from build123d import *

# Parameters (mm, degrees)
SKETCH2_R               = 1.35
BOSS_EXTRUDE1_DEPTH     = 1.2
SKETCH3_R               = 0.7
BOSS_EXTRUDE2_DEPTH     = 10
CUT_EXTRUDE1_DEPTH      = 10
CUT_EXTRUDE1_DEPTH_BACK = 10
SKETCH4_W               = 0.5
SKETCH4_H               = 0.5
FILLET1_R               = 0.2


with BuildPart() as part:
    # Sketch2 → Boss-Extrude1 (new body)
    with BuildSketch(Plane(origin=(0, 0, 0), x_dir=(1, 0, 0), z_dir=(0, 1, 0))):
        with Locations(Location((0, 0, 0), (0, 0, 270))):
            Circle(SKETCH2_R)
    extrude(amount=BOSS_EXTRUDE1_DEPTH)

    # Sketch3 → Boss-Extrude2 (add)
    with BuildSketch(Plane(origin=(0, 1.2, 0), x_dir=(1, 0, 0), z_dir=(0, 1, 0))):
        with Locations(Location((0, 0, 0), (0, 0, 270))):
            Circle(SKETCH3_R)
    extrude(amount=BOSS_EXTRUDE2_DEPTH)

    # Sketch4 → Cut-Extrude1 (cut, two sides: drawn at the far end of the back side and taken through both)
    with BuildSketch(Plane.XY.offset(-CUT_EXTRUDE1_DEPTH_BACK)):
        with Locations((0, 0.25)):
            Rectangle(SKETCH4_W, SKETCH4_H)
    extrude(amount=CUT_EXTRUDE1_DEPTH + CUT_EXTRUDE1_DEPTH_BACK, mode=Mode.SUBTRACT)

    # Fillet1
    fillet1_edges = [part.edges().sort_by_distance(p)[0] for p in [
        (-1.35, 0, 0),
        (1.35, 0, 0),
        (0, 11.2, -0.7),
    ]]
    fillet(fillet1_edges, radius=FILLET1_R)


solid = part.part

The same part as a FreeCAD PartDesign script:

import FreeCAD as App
import Part
import Sketcher


def edges_at(feature, points):
    """Names of the edges that pass closest to the given points."""
    edges = feature.Shape.Edges
    near = lambda p: min(range(len(edges)), key=lambda i: edges[i].distToShape(Part.Vertex(*p))[0])
    return sorted({f"Edge{near(p) + 1}" for p in points})

doc = App.newDocument("Part")
body = doc.addObject("PartDesign::Body", "Body")

# Sketch on XZ plane
sketch1 = body.newObject("Sketcher::SketchObject", "Sketch")
sketch1.AttachmentSupport = (doc.getObject("XZ_Plane"), [""])
sketch1.MapMode = "FlatFace"
sketch1.addGeometry(Part.Circle(App.Vector(0, 0, 0), App.Vector(0, 0, 1), 1.4), False)
sketch1.addConstraint(Sketcher.Constraint("Coincident", 0, 3, -1, 1))
sketch1.addConstraint(Sketcher.Constraint("Diameter", 0, 2.7))
pad1 = body.newObject("PartDesign::Pad", "Pad")
pad1.Profile = sketch1
pad1.Length = 1.2
pad1.Reversed = True

# Sketch on XZ plane
sketch2 = body.newObject("Sketcher::SketchObject", "Sketch001")
sketch2.AttachmentSupport = (doc.getObject("XZ_Plane"), [""])
sketch2.MapMode = "FlatFace"
sketch2.AttachmentOffset = App.Placement(App.Vector(0, 0, -1.2), App.Rotation())
sketch2.addGeometry(Part.Circle(App.Vector(0, 0, 0), App.Vector(0, 0, 1), 0.7), False)
sketch2.addConstraint(Sketcher.Constraint("Coincident", 0, 3, -1, 1))
sketch2.addConstraint(Sketcher.Constraint("Diameter", 0, 1.4))
pad2 = body.newObject("PartDesign::Pad", "Pad001")
pad2.Profile = sketch2
pad2.Length = 10
pad2.Reversed = True

# Sketch on XY plane
sketch3 = body.newObject("Sketcher::SketchObject", "Sketch002")
sketch3.AttachmentSupport = (doc.getObject("XY_Plane"), [""])
sketch3.MapMode = "FlatFace"
sketch3.addGeometry(Part.LineSegment(App.Vector(-0.2, 0.5, 0), App.Vector(-0.2, 0, 0)), False)
sketch3.addGeometry(Part.LineSegment(App.Vector(-0.2, 0, 0), App.Vector(0.2, 0, 0)), False)
sketch3.addGeometry(Part.LineSegment(App.Vector(0.2, 0, 0), App.Vector(0.2, 0.5, 0)), False)
sketch3.addGeometry(Part.LineSegment(App.Vector(0.2, 0.5, 0), App.Vector(-0.2, 0.5, 0)), False)
sketch3.addConstraint(Sketcher.Constraint("Coincident", 0, 2, 1, 1))
sketch3.addConstraint(Sketcher.Constraint("Coincident", 1, 2, 2, 1))
sketch3.addConstraint(Sketcher.Constraint("Coincident", 2, 2, 3, 1))
sketch3.addConstraint(Sketcher.Constraint("Coincident", 3, 2, 0, 1))
sketch3.addConstraint(Sketcher.Constraint("Vertical", 0))
sketch3.addConstraint(Sketcher.Constraint("Horizontal", 1))
sketch3.addConstraint(Sketcher.Constraint("Vertical", 2))
sketch3.addConstraint(Sketcher.Constraint("Horizontal", 3))
sketch3.addConstraint(Sketcher.Constraint("Symmetric", 0, 2, 1, 2, -1, 1))
sketch3.addConstraint(Sketcher.Constraint("Equal", 3, 0))
sketch3.addConstraint(Sketcher.Constraint("DistanceX", 1, 1, 1, 2, 0.5))
pocket1 = body.newObject("PartDesign::Pocket", "Pocket")
pocket1.Profile = sketch3
pocket1.Type = "ThroughAll"
pocket1.Midplane = True
doc.recompute()

fillet = body.newObject("PartDesign::Fillet", "Fillet")
fillet.Base = (pocket1, edges_at(pocket1, [(-1.35, 0, 0), (1.35, 0, 0), (0, 11.2, -0.7)]))
fillet.Radius = 0.2

doc.recompute()
